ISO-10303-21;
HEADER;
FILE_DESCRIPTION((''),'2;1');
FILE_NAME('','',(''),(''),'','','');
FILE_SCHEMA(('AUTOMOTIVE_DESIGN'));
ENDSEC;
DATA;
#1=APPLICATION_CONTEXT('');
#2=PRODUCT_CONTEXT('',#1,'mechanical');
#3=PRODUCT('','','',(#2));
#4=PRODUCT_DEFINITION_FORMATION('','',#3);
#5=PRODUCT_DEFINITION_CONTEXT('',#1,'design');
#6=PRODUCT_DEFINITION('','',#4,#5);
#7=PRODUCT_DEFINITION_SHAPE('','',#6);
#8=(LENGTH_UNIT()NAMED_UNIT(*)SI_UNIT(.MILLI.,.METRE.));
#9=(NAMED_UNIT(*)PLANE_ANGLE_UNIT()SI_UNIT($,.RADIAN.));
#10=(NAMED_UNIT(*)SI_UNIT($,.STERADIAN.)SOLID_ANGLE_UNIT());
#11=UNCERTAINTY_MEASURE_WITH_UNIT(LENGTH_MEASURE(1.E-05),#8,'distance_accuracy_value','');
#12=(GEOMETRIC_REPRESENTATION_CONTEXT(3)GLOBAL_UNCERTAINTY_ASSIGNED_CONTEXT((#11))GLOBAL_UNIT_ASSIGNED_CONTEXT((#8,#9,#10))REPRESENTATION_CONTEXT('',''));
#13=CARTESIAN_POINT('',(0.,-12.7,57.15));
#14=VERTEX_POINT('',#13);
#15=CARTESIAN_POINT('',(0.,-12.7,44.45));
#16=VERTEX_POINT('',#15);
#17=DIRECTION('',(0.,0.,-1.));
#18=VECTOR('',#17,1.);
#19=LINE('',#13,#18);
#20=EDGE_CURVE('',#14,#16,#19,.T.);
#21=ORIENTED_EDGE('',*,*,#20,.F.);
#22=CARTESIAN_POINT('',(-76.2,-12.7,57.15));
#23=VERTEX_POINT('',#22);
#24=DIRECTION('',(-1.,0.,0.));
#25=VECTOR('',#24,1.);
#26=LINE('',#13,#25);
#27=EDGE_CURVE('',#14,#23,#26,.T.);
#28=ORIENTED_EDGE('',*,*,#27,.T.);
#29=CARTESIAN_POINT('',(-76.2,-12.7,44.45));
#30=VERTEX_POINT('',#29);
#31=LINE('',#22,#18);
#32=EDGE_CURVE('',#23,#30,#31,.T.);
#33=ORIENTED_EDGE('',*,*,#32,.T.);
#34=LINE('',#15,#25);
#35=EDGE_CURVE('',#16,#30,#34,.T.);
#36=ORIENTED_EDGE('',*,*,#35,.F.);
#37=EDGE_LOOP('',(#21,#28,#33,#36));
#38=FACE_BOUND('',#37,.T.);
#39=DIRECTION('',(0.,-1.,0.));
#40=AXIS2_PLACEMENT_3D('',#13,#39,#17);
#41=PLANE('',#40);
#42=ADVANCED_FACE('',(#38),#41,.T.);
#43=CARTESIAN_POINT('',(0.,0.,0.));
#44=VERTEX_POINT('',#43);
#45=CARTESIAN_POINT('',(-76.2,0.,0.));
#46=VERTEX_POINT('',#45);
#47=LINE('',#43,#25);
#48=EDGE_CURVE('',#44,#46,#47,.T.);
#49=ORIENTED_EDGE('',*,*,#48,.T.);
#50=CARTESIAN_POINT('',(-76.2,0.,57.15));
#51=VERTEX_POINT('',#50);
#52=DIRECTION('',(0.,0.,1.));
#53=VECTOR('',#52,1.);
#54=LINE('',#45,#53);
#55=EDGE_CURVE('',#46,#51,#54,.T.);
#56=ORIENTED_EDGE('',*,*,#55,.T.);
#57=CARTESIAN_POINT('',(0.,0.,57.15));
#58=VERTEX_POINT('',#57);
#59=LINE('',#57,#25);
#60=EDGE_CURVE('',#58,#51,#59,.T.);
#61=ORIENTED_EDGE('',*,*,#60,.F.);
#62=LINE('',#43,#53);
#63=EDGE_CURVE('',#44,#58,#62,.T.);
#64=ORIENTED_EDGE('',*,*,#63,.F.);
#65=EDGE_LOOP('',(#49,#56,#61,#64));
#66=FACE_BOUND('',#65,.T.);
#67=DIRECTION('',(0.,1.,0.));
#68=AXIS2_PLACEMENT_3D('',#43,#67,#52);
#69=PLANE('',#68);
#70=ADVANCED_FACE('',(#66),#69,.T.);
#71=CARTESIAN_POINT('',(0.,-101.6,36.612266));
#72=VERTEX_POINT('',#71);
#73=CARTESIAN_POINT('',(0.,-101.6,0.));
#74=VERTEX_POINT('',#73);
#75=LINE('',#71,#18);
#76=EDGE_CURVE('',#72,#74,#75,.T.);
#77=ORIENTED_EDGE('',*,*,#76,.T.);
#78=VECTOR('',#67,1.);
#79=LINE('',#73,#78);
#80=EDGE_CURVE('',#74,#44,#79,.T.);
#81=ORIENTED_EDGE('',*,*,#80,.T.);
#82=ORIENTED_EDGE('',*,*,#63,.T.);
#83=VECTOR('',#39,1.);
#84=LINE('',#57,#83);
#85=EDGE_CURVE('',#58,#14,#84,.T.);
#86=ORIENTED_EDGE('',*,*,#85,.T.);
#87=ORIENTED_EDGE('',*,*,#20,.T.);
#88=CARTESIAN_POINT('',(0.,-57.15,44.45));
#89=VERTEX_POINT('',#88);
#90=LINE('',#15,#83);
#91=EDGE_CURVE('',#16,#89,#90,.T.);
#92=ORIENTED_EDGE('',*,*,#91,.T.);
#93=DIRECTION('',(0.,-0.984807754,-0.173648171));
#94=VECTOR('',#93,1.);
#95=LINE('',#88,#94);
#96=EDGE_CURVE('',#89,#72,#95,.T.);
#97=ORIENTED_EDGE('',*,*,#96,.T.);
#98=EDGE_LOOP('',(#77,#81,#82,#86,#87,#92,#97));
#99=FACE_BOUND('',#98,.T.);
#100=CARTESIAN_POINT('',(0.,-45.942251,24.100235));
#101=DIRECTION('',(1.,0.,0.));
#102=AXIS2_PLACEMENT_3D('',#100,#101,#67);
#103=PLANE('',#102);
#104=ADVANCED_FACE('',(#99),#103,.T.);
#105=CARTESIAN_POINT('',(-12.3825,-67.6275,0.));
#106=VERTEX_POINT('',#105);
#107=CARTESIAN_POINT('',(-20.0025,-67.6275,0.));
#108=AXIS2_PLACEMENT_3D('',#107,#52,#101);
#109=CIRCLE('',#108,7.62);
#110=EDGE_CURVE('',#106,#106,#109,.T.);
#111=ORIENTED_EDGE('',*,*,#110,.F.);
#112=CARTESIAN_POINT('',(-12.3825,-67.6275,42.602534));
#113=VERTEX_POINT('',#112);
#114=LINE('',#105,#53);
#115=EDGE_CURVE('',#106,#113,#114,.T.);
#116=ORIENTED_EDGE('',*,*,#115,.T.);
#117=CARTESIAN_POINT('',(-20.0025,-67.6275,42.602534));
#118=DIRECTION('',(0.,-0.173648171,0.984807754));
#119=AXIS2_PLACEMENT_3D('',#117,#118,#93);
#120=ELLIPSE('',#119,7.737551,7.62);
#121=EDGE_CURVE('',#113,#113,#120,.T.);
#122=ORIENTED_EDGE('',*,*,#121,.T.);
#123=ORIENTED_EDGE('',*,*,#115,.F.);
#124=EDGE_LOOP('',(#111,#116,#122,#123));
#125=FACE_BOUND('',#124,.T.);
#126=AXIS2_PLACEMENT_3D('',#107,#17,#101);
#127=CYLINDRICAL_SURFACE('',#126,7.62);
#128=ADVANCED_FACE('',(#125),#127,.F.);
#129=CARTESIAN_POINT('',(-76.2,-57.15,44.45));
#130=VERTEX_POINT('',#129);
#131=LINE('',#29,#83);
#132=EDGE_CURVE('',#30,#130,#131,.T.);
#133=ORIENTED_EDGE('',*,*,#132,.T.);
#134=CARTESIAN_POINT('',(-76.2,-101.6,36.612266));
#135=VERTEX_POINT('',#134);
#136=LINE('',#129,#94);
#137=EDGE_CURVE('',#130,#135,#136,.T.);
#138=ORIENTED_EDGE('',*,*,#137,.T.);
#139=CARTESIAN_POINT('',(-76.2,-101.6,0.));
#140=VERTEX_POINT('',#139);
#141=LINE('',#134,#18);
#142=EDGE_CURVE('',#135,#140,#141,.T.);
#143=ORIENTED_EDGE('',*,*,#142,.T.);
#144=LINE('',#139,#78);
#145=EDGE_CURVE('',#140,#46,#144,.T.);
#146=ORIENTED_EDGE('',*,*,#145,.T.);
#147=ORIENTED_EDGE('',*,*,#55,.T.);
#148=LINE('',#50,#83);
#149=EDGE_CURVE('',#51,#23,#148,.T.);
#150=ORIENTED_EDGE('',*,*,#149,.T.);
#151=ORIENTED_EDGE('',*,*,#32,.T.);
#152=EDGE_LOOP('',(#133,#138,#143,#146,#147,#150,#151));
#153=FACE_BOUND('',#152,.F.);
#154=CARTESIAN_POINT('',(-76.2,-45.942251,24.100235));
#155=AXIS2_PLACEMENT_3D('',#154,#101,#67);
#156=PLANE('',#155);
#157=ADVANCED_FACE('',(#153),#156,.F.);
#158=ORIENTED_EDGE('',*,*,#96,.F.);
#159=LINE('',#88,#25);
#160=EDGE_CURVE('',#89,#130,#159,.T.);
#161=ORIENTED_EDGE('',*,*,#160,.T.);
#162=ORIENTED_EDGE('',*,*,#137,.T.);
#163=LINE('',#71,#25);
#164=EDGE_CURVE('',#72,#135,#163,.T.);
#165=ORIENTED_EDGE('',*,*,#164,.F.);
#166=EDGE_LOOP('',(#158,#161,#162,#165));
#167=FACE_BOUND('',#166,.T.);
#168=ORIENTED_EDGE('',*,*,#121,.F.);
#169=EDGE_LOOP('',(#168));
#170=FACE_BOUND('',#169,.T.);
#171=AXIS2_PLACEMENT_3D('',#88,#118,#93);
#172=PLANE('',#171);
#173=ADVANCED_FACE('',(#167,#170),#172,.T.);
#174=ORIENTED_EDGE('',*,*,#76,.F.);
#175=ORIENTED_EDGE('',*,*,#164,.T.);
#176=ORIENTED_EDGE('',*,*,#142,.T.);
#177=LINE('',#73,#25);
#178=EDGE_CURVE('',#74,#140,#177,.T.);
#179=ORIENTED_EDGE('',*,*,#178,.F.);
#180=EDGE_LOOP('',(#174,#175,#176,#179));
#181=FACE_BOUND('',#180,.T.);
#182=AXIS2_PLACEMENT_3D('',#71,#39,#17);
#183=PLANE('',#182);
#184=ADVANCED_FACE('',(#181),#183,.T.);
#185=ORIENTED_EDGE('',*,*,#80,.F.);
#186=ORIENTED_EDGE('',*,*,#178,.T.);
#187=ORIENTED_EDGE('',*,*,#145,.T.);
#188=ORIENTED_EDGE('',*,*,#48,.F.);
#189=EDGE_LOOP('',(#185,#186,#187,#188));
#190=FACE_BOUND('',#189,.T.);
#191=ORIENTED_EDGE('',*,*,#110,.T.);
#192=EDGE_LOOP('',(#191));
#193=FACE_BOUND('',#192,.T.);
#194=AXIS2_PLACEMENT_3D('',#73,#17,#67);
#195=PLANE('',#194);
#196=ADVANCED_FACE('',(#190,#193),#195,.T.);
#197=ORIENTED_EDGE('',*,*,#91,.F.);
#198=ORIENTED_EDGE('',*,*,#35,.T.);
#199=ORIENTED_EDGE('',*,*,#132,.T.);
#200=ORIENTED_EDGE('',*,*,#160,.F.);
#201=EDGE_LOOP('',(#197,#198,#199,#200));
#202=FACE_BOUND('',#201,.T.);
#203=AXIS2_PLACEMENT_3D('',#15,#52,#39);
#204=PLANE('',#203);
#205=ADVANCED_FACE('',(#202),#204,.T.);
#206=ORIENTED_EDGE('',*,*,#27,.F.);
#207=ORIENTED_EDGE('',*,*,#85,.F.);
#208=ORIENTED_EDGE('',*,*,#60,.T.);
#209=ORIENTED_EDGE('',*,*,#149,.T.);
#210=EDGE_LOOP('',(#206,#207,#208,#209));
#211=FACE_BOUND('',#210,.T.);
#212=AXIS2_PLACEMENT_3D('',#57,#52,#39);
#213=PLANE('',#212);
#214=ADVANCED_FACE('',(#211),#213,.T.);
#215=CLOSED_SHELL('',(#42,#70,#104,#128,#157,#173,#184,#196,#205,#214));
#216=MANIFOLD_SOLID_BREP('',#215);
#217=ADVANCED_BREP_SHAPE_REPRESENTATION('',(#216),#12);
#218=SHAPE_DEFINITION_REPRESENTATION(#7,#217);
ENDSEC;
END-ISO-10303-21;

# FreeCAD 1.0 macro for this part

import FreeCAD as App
import Part
import Sketcher
from FreeCAD import Vector
Q = App.Units.Quantity

doc = App.newDocument("Part")
params = doc.addObject("Spreadsheet::Sheet", "Params")
for row, (alias, value) in enumerate([
    ("sketch1_width", "4 in"),
    ("sketch1_width2", "0.5 in"),
    ("sketch1_width3", "1.75 in"),
    ("sketch1_height", "2.25 in"),
    ("pad1_length", "3 in"),
    ("sketch2_diameter", "0.6 in"),
    ("pocket1_length", "2 in"),
], start=1):
    params.set(f"A{row}", alias)
    params.set(f"B{row}", "=" + value)
    params.setAlias(f"B{row}", alias)

body = doc.addObject("PartDesign::Body", "Body")

# Sketch on YZ plane
sketch1 = body.newObject("Sketcher::SketchObject", "Sketch")
sketch1.AttachmentSupport = (doc.getObject("YZ_Plane"), [""])
sketch1.MapMode = "FlatFace"
sketch1.addGeometry(Part.LineSegment(Vector(-102, 0, 0), Vector(0, 0, 0)), False)
sketch1.addGeometry(Part.LineSegment(Vector(0, 0, 0), Vector(0, 57, 0)), False)
sketch1.addGeometry(Part.LineSegment(Vector(0, 57, 0), Vector(-13, 57, 0)), False)
sketch1.addGeometry(Part.LineSegment(Vector(-13, 57, 0), Vector(-13, 44, 0)), False)
sketch1.addGeometry(Part.LineSegment(Vector(-13, 44, 0), Vector(-57, 44, 0)), False)
sketch1.addGeometry(Part.LineSegment(Vector(-57, 44, 0), Vector(-102, 37, 0)), False)
sketch1.addGeometry(Part.LineSegment(Vector(-102, 37, 0), Vector(-102, 0, 0)), False)
sketch1.addConstraint(Sketcher.Constraint("Coincident", 0, 2, 1, 1))
sketch1.addConstraint(Sketcher.Constraint("Coincident", 1, 2, 2, 1))
sketch1.addConstraint(Sketcher.Constraint("Coincident", 2, 2, 3, 1))
sketch1.addConstraint(Sketcher.Constraint("Coincident", 3, 2, 4, 1))
sketch1.addConstraint(Sketcher.Constraint("Coincident", 4, 2, 5, 1))
sketch1.addConstraint(Sketcher.Constraint("Coincident", 5, 2, 6, 1))
sketch1.addConstraint(Sketcher.Constraint("Coincident", 6, 2, 0, 1))
sketch1.addConstraint(Sketcher.Constraint("Horizontal", 0))
sketch1.addConstraint(Sketcher.Constraint("Vertical", 1))
sketch1.addConstraint(Sketcher.Constraint("Horizontal", 2))
sketch1.addConstraint(Sketcher.Constraint("Vertical", 3))
sketch1.addConstraint(Sketcher.Constraint("Horizontal", 4))
sketch1.addConstraint(Sketcher.Constraint("Vertical", 6))
sketch1.addConstraint(Sketcher.Constraint("Coincident", 0, 2, -1, 1))
sketch1.addConstraint(Sketcher.Constraint("Equal", 2, 3))
sketch1.addConstraint(Sketcher.Constraint("DistanceX", 0, 1, 0, 2, Q("4 in")))
sketch1.addConstraint(Sketcher.Constraint("DistanceX", 2, 2, 2, 1, Q("0.5 in")))
sketch1.addConstraint(Sketcher.Constraint("Angle", 5, Q("-170 deg")))
sketch1.addConstraint(Sketcher.Constraint("DistanceX", 4, 2, 4, 1, Q("1.75 in")))
sketch1.addConstraint(Sketcher.Constraint("DistanceY", 1, 1, 1, 2, Q("2.25 in")))
sketch1.setExpression("Constraints[15]", "Params.sketch1_width")
sketch1.setExpression("Constraints[16]", "Params.sketch1_width2")
sketch1.setExpression("Constraints[18]", "Params.sketch1_width3")
sketch1.setExpression("Constraints[19]", "Params.sketch1_height")
pad1 = body.newObject("PartDesign::Pad", "Pad")
pad1.Profile = sketch1
pad1.setExpression("Length", "Params.pad1_length")
pad1.Reversed = True

# Sketch on XY plane
sketch2 = body.newObject("Sketcher::SketchObject", "Sketch001")
sketch2.AttachmentSupport = (doc.getObject("XY_Plane"), [""])
sketch2.MapMode = "FlatFace"
sketch2.addGeometry(Part.Circle(Vector(-20, -68, 0), Vector(0, 0, 1), 8), False)
sketch2.addConstraint(Sketcher.Constraint("Diameter", 0, Q("0.6 in")))
sketch2.addConstraint(Sketcher.Constraint("DistanceX", 0, 3, -1, 1, Q("0.7875 in")))
sketch2.addConstraint(Sketcher.Constraint("DistanceY", 0, 3, -1, 1, Q("2.6625 in")))
sketch2.setExpression("Constraints[0]", "Params.sketch2_diameter")
pocket1 = body.newObject("PartDesign::Pocket", "Pocket")
pocket1.Profile = sketch2
pocket1.setExpression("Length", "Params.pocket1_length")
pocket1.Reversed = True

doc.recompute()
